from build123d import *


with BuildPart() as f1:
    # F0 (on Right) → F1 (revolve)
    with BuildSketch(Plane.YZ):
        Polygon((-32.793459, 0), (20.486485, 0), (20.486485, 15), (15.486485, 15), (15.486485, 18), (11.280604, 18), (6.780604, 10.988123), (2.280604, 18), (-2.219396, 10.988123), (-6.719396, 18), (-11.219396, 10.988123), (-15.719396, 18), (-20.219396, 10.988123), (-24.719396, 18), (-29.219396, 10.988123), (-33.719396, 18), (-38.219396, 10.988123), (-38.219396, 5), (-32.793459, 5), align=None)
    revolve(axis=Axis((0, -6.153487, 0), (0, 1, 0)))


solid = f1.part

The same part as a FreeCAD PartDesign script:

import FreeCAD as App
import Part
import Sketcher

V = App.Vector
Q = App.Units.Quantity


def add_polygon(sketch, points):
    """Adds a closed chain of lines whose ends are joined by coincident constraints."""
    first, n = sketch.GeometryCount, len(points)
    for a, b in zip(points, points[1:] + points[:1]):
        sketch.addGeometry(Part.LineSegment(App.Vector(*a, 0), App.Vector(*b, 0)), False)
    for i in range(n):
        sketch.addConstraint(Sketcher.Constraint("Coincident", first + i, 2, first + (i + 1) % n, 1))

doc = App.newDocument("Part")
body = doc.addObject("PartDesign::Body", "Body")

sketch1 = body.newObject("Sketcher::SketchObject", "Sketch")
sketch1.AttachmentSupport = (doc.getObject("YZ_Plane"), [""])
sketch1.MapMode = "FlatFace"
add_polygon(sketch1, [(-32.8, 0), (20.5, 0), (20.5, 15), (15.5, 15), (15.5, 18), (11.3, 18), (6.8, 11), (2.3, 18), (-2.2, 11), (-6.7, 18), (-11.2, 11), (-15.7, 18), (-20.2, 11), (-24.7, 18), (-29.2, 11), (-33.7, 18), (-38.2, 11), (-38.2, 5), (-32.8, 5)])
sketch1.addConstraint([
    Sketcher.Constraint("Horizontal", 0),
    Sketcher.Constraint("Vertical", 1),
    Sketcher.Constraint("Horizontal", 2),
    Sketcher.Constraint("Vertical", 3),
    Sketcher.Constraint("Horizontal", 4),
    Sketcher.Constraint("Vertical", 16),
    Sketcher.Constraint("Horizontal", 17),
    Sketcher.Constraint("Vertical", 18),
    Sketcher.Constraint("PointOnObject", 0, 2, -1),
    Sketcher.Constraint("Parallel", 5, 7),
    Sketcher.Constraint("Parallel", 6, 8),
    Sketcher.Constraint("Parallel", 7, 9),
    Sketcher.Constraint("Parallel", 8, 10),
    Sketcher.Constraint("Parallel", 9, 11),
    Sketcher.Constraint("Parallel", 10, 12),
    Sketcher.Constraint("Parallel", 11, 13),
    Sketcher.Constraint("Parallel", 12, 14),
    Sketcher.Constraint("Parallel", 13, 15),
    Sketcher.Constraint("Horizontal", 4, 2, 6, 2),
    Sketcher.Constraint("Horizontal", 5, 2, 7, 2),
    Sketcher.Constraint("Horizontal", 6, 2, 8, 2),
    Sketcher.Constraint("Horizontal", 7, 2, 9, 2),
    Sketcher.Constraint("Horizontal", 8, 2, 10, 2),
    Sketcher.Constraint("Horizontal", 9, 2, 11, 2),
    Sketcher.Constraint("Horizontal", 10, 2, 12, 2),
    Sketcher.Constraint("Horizontal", 11, 2, 13, 2),
    Sketcher.Constraint("Horizontal", 12, 2, 14, 2),
    Sketcher.Constraint("Horizontal", 13, 2, 15, 2),
    Sketcher.Constraint("Equal", 2, 18),
    Sketcher.Constraint("Equal", 5, 6),
    Sketcher.Constraint("DistanceX", 2, 2, 2, 1, Q("5 mm")),
    Sketcher.Constraint("DistanceY", 1, 1, 1, 2, Q("15 mm")),
    Sketcher.Constraint("DistanceY", 3, 1, 3, 2, Q("3 mm")),
    Sketcher.Constraint("DistanceX", 6, 2, 4, 2, Q("9 mm")),
    Sketcher.Constraint("DistanceX", 4, 2, 4, 1, Q("4.205881 mm")),
    Sketcher.Constraint("Distance", 5, Q("8.331652 mm")),
    Sketcher.Constraint("DistanceX", 0, 1, 0, 2, Q("53.279944 mm")),
    Sketcher.Constraint("DistanceX", 17, 2, -1, 1, Q("32.793459 mm")),
])
revolution = body.newObject("PartDesign::Revolution", "Revolution")
revolution.Profile = sketch1
revolution.ReferenceAxis = (sketch1, ["H_Axis"])
revolution.Angle = 360

doc.recompute()
